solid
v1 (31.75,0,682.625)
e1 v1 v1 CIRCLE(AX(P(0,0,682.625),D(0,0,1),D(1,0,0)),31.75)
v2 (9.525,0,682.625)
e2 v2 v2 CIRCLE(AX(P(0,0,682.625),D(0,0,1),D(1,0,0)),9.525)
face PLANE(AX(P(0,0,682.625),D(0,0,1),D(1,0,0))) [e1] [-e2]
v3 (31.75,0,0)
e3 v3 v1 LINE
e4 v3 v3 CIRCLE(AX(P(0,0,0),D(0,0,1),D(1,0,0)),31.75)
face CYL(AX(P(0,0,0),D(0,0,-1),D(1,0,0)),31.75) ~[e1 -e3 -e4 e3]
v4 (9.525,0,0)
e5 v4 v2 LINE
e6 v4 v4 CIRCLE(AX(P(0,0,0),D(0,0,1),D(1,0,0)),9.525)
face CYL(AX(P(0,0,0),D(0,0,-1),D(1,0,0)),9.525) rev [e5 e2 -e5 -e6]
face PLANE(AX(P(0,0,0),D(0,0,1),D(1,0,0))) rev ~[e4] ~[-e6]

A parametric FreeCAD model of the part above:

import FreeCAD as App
import Part
import Sketcher

V = App.Vector
Q = App.Units.Quantity

doc = App.newDocument("Part")
params = doc.addObject("Spreadsheet::Sheet", "Params")
for row, (alias, value) in enumerate([
    ("sketch1_diameter", "2.5 in"),
    ("sketch1_diameter2", "0.75 in"),
    ("pad1_length", "26.875 in"),
], start=1):
    params.set(f"A{row}", alias)
    params.set(f"B{row}", "=" + value)
    params.setAlias(f"B{row}", alias)

body = doc.addObject("PartDesign::Body", "Body")

sketch1 = body.newObject("Sketcher::SketchObject", "Sketch")
sketch1.AttachmentSupport = (doc.getObject("XY_Plane"), [""])
sketch1.MapMode = "FlatFace"
sketch1.addGeometry([
    Part.Circle(V(0, 0, 0), V(0, 0, 1), 32),
    Part.Circle(V(0, 0, 0), V(0, 0, 1), 10),
], False)
sketch1.addConstraint([
    Sketcher.Constraint("Coincident", 0, 3, -1, 1),
    Sketcher.Constraint("Coincident", 1, 3, -1, 1),
    Sketcher.Constraint("Diameter", 0, Q("2.5 in")),
    Sketcher.Constraint("Diameter", 1, Q("0.75 in")),
])
sketch1.setExpression("Constraints[2]", "Params.sketch1_diameter")
sketch1.setExpression("Constraints[3]", "Params.sketch1_diameter2")
pad1 = body.newObject("PartDesign::Pad", "Pad")
pad1.Profile = sketch1
pad1.setExpression("Length", "Params.pad1_length")

doc.recompute()
